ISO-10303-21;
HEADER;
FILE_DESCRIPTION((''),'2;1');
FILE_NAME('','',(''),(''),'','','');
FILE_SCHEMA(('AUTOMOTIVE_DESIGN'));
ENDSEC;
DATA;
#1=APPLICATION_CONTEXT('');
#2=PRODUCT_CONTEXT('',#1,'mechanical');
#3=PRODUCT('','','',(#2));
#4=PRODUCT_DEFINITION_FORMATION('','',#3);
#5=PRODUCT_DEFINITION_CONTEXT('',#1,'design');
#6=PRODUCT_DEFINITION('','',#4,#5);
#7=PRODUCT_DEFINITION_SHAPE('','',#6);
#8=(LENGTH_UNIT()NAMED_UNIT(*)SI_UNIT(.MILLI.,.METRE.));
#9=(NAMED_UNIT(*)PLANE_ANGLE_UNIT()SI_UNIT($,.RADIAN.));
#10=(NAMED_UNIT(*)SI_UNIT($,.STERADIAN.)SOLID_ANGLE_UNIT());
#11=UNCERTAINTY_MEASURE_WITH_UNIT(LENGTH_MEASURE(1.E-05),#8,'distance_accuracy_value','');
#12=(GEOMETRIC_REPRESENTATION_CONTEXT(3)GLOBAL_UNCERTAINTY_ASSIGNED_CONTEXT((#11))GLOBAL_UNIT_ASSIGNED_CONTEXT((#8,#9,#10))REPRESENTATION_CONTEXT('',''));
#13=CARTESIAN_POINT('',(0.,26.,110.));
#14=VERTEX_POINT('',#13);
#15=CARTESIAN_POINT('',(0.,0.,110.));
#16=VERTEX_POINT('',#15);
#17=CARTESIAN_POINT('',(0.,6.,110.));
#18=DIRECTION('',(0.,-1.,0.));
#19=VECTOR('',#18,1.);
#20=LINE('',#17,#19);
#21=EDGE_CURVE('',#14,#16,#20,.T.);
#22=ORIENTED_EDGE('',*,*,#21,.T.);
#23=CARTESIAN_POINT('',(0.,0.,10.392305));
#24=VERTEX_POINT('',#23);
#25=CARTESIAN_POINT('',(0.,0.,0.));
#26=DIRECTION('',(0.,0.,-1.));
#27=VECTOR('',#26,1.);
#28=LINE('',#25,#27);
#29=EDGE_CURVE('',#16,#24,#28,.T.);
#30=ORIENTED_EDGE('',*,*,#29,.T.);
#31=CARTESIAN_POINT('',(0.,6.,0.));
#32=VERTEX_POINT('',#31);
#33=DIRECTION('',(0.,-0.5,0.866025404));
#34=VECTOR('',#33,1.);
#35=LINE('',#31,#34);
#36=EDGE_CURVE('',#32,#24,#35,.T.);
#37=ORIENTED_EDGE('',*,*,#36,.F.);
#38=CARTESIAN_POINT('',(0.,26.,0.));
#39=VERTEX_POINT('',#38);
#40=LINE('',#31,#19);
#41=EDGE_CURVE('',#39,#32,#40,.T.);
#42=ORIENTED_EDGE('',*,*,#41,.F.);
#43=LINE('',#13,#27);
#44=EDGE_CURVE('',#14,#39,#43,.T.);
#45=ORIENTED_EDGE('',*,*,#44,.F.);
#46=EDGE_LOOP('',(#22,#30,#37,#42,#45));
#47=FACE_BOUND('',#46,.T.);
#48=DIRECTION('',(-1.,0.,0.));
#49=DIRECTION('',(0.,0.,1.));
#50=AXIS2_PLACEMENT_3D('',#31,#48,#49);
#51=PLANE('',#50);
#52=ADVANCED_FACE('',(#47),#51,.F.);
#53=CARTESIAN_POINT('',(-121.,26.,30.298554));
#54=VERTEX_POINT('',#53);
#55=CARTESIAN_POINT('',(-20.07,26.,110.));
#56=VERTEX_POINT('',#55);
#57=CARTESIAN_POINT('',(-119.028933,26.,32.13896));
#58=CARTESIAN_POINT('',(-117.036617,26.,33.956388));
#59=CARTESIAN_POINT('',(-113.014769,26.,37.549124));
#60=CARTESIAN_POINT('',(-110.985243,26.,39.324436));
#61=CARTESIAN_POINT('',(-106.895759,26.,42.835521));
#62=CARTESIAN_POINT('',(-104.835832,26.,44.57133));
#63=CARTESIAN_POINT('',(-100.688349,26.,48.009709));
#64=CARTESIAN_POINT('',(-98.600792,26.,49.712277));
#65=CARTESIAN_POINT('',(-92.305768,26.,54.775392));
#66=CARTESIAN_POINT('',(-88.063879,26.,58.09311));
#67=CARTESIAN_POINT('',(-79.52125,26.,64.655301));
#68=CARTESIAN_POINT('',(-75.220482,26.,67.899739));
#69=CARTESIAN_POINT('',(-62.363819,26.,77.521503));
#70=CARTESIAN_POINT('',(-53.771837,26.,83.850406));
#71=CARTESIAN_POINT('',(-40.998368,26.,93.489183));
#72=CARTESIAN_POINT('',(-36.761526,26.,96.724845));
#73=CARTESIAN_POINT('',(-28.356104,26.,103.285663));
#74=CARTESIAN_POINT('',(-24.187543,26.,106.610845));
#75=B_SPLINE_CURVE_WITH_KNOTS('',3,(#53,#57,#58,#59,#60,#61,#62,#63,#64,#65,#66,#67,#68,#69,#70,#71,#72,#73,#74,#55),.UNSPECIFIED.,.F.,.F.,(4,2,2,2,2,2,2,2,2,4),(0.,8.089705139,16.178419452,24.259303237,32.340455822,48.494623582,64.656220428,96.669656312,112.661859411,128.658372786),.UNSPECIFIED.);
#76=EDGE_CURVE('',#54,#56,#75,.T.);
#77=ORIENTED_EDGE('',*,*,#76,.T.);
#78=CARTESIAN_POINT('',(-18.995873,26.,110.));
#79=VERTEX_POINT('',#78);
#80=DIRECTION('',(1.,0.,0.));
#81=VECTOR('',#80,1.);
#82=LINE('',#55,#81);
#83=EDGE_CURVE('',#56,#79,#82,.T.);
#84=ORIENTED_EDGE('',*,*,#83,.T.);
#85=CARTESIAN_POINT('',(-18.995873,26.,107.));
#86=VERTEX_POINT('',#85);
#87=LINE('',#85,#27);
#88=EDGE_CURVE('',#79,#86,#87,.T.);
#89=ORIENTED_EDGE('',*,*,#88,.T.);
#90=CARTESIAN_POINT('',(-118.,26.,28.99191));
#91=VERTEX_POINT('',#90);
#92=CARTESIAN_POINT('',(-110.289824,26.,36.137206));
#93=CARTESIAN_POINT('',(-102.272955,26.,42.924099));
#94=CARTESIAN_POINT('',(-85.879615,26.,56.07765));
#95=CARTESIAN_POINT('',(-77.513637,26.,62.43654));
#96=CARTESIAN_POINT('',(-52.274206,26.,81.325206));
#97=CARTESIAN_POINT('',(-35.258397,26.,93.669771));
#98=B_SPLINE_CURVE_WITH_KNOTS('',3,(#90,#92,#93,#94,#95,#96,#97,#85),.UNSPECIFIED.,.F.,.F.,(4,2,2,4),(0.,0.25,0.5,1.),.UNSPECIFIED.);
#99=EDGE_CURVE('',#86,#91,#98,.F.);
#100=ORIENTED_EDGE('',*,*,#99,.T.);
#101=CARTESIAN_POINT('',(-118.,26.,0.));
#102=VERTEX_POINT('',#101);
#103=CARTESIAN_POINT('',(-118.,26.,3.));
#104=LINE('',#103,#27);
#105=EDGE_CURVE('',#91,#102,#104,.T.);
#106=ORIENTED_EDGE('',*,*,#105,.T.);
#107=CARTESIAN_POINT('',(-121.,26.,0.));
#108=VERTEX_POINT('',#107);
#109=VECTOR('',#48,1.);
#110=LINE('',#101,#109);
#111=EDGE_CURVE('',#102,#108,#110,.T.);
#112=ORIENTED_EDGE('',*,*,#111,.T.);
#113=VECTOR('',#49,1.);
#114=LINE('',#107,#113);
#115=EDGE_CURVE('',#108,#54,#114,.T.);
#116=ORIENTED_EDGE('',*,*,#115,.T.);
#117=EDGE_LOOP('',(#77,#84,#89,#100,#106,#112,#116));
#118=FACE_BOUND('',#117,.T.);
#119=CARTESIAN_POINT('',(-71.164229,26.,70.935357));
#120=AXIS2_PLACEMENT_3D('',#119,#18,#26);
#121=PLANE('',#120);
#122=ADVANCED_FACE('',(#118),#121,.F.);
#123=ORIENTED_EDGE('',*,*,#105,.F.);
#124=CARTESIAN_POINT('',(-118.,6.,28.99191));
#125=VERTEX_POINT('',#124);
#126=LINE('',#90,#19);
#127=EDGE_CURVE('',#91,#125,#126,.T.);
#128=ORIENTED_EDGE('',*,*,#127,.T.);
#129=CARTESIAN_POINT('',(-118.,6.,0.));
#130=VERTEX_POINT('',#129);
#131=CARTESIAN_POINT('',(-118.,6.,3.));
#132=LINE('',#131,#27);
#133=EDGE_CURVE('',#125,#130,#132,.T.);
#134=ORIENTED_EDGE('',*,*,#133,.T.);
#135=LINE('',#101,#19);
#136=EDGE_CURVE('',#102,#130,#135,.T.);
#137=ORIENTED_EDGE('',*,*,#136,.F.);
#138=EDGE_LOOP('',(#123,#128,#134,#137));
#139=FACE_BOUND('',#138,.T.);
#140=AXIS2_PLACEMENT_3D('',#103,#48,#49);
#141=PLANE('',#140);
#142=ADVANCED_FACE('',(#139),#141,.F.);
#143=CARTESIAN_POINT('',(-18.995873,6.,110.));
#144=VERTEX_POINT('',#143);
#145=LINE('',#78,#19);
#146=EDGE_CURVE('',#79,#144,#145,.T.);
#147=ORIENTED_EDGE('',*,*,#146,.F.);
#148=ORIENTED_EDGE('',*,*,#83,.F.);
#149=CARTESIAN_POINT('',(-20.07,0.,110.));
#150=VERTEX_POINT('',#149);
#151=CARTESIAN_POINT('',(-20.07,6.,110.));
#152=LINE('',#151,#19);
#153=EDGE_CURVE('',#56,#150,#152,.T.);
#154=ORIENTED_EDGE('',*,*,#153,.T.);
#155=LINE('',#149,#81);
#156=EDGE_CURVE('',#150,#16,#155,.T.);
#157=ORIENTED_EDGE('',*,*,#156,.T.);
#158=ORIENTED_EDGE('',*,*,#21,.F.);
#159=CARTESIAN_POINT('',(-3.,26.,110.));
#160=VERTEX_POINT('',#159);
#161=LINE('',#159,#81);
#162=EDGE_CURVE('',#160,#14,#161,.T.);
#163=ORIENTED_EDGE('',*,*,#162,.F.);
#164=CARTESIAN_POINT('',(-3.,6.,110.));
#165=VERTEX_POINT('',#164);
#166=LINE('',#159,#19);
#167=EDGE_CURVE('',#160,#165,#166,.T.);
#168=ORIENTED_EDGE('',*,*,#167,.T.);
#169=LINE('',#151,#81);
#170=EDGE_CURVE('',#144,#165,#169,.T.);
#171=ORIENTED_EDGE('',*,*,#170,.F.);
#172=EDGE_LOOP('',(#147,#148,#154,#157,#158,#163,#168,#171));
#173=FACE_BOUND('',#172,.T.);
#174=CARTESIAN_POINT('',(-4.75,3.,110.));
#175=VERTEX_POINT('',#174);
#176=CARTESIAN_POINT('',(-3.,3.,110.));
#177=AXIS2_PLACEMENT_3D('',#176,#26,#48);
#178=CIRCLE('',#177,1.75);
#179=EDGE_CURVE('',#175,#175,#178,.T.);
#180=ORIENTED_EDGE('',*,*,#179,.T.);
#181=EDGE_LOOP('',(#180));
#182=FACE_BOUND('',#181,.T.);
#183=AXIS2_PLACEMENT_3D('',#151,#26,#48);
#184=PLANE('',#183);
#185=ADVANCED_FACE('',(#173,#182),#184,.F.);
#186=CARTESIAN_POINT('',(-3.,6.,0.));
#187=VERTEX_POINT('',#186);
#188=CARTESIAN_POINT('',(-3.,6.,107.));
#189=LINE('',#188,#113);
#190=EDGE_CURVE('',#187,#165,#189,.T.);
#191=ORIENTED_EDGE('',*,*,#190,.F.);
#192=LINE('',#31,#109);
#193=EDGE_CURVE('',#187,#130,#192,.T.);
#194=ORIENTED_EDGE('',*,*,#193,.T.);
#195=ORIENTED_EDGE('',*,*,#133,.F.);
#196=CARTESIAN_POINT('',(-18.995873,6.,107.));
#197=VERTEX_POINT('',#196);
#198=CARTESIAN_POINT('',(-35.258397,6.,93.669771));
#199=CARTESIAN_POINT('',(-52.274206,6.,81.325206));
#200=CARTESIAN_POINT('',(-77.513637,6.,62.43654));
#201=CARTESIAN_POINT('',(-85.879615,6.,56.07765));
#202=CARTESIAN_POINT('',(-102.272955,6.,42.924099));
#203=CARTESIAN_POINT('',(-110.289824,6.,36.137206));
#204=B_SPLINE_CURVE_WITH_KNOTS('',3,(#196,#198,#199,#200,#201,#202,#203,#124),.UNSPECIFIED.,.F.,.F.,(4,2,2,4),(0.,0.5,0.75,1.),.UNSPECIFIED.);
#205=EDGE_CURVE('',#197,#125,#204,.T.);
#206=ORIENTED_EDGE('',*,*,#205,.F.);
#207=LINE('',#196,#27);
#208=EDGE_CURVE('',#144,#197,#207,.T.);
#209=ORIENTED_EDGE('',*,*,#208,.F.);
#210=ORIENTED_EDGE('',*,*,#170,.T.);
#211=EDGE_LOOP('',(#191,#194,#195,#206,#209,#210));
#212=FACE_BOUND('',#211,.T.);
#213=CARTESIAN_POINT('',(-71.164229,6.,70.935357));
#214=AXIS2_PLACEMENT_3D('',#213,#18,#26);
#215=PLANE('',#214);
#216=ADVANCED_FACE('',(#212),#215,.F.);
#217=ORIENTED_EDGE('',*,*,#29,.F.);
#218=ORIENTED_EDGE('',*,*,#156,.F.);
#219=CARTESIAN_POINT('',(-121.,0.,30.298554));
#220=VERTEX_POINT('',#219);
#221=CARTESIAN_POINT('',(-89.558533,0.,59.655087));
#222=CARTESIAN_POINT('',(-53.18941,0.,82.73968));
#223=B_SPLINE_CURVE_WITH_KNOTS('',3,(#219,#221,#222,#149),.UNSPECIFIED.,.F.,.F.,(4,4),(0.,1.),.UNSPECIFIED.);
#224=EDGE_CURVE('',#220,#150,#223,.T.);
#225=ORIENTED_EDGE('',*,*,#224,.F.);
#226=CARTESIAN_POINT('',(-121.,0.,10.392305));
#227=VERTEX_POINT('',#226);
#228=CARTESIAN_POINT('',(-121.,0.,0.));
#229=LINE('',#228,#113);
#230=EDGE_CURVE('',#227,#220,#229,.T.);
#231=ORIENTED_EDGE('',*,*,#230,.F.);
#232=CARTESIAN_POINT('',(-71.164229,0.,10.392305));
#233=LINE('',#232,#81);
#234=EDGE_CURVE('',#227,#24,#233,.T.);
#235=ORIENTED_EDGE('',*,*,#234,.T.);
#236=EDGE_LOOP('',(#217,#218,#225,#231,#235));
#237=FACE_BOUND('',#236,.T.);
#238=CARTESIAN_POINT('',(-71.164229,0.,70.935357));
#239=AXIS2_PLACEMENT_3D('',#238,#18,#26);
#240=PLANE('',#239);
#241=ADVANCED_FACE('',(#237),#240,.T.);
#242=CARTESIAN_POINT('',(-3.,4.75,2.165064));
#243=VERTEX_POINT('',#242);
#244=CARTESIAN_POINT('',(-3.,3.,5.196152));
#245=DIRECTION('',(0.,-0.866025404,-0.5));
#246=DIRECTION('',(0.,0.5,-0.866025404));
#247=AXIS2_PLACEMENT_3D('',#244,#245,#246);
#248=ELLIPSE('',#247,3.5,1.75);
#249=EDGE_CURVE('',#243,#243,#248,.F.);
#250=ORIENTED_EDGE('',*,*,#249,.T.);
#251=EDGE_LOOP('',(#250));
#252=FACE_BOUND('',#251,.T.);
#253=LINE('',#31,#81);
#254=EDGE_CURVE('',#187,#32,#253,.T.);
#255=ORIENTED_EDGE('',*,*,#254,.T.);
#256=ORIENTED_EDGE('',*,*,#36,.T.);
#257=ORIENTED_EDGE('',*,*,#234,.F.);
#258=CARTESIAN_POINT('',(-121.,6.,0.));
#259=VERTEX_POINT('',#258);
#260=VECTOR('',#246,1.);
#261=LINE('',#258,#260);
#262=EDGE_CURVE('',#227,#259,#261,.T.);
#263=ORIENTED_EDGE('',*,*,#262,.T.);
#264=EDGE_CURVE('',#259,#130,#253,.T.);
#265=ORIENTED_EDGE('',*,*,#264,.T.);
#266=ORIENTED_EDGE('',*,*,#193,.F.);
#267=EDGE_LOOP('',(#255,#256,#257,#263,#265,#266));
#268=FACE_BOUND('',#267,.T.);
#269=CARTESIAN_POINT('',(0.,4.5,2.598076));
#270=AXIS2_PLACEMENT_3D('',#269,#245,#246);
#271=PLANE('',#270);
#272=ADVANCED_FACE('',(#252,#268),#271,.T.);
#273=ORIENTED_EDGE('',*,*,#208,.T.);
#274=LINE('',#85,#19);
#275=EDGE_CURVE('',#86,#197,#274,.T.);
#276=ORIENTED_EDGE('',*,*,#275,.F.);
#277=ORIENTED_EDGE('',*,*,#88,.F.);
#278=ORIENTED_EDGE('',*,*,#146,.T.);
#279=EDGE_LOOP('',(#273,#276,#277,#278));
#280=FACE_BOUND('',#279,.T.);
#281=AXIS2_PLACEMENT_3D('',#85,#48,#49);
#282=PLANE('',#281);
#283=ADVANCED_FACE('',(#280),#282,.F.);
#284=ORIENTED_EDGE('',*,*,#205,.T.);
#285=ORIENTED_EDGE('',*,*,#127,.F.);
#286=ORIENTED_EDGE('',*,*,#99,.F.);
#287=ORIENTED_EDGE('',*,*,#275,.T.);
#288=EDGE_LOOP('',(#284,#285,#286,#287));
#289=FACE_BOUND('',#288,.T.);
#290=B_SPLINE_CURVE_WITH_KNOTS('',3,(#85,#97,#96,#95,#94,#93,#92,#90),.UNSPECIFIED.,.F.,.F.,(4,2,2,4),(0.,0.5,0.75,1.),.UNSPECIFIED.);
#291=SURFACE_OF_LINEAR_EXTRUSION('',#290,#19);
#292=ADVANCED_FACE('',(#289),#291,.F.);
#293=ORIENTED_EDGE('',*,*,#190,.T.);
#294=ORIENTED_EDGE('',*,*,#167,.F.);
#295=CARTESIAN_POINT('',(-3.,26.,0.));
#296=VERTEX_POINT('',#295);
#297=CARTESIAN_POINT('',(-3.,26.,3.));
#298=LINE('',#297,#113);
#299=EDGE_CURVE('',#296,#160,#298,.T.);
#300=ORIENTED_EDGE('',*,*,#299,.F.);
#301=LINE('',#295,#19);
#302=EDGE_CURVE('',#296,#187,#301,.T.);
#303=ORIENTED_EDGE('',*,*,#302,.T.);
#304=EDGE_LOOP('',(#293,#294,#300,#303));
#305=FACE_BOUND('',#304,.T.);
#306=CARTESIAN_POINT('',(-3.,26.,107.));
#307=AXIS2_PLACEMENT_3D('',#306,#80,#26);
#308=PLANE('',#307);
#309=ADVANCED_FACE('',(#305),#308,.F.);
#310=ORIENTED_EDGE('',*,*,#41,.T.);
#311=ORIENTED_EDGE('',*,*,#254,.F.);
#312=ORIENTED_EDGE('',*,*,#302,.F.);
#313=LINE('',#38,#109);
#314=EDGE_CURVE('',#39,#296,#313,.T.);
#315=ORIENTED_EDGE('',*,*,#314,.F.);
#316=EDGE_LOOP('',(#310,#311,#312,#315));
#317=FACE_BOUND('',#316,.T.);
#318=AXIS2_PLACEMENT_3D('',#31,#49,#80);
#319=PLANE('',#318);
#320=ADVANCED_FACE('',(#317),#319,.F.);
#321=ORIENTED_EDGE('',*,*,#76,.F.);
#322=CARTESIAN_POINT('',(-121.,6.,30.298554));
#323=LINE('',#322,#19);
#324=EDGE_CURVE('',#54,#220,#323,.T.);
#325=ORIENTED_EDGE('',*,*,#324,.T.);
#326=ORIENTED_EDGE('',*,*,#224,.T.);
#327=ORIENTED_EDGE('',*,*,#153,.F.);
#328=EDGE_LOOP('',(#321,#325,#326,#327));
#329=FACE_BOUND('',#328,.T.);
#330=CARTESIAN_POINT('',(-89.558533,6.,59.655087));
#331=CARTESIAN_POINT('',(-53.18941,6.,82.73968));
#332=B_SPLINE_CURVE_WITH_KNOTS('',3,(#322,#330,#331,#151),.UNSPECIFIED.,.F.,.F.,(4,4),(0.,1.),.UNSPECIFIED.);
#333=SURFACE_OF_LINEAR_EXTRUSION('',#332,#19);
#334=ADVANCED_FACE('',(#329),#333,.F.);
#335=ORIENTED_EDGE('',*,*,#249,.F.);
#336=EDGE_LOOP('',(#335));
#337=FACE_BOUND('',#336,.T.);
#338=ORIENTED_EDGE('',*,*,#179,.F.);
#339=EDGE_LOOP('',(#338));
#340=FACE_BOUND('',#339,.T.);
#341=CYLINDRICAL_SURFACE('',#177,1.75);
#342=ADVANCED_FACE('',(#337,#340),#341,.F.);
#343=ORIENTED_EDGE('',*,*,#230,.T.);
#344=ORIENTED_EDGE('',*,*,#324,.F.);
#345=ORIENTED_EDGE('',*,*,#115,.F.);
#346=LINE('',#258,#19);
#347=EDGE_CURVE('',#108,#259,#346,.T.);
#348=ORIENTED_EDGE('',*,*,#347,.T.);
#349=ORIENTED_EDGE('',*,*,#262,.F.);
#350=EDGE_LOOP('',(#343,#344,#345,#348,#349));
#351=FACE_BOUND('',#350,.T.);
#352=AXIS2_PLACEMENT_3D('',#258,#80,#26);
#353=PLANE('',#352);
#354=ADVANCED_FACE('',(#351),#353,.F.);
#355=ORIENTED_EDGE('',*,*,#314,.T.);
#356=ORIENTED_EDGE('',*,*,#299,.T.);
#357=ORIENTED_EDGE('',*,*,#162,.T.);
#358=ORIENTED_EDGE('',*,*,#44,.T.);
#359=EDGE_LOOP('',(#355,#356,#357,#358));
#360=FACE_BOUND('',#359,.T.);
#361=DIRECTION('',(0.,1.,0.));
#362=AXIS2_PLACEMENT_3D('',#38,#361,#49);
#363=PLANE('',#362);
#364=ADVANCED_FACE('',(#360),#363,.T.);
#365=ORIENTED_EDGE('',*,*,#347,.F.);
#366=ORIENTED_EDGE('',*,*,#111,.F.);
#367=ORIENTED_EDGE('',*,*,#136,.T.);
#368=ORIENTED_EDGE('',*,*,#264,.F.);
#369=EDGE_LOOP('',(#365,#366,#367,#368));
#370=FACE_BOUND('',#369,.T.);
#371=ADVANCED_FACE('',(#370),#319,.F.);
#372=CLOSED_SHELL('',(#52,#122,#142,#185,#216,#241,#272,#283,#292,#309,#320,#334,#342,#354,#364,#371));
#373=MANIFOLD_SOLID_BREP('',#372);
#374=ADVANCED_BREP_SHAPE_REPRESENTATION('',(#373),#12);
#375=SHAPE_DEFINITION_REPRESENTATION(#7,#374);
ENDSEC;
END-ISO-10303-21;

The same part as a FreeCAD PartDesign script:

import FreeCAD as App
import Part
import Sketcher

V = App.Vector

doc = App.newDocument("Part")
body = doc.addObject("PartDesign::Body", "Body")

sketch1 = body.newObject("Sketcher::SketchObject", "Sketch")
sketch1.AttachmentSupport = (doc.getObject("XZ_Plane"), [""])
sketch1.MapMode = "FlatFace"
sketch1.addGeometry(Part.LineSegment(V(0, 0, 0), V(-121, 0, 0)), False)
sketch1.addGeometry(Part.LineSegment(V(-121, 0, 0), V(-121, 30.298554, 0)), False)
sketch1.addGeometry(Part.BSplineCurve([V(-121, 30.298554, 0), V(-89.558533, 59.655087, 0), V(-53.18941, 82.73968, 0), V(-20.07, 110, 0)], [4, 4], [0, 1], False, 3, [1, 1, 1, 1], False), False)
sketch1.addGeometry(Part.LineSegment(V(-20.07, 110, 0), V(0, 110, 0)), False)
sketch1.addGeometry(Part.LineSegment(V(0, 110, 0), V(0, 0, 0)), False)
sketch1.addConstraint(Sketcher.Constraint("Block", 2))
sketch1.addConstraint(Sketcher.Constraint("Coincident", 0, 2, 1, 1))
sketch1.addConstraint(Sketcher.Constraint("Coincident", 1, 2, 2, 1))
sketch1.addConstraint(Sketcher.Constraint("Coincident", 2, 2, 3, 1))
sketch1.addConstraint(Sketcher.Constraint("Coincident", 3, 2, 4, 1))
sketch1.addConstraint(Sketcher.Constraint("Coincident", 4, 2, 0, 1))
sketch1.addConstraint(Sketcher.Constraint("Horizontal", 0))
sketch1.addConstraint(Sketcher.Constraint("Vertical", 1))
sketch1.addConstraint(Sketcher.Constraint("Horizontal", 3))
sketch1.addConstraint(Sketcher.Constraint("Vertical", 4))
sketch1.addConstraint(Sketcher.Constraint("Coincident", 4, 2, -1, 1))
pad1 = body.newObject("PartDesign::Pad", "Pad")
pad1.Profile = sketch1
pad1.Length = 6
pad1.Reversed = True

sketch2 = body.newObject("Sketcher::SketchObject", "Sketch001")
sketch2.AttachmentSupport = (doc.getObject("XY_Plane"), [""])
sketch2.MapMode = "FlatFace"
sketch2.addGeometry(Part.Circle(V(-3, 3, 0), V(0, 0, 1), 1.8), False)
sketch2.addConstraint(Sketcher.Constraint("Diameter", 0, 3.5))
sketch2.addConstraint(Sketcher.Constraint("DistanceX", 0, 3, -1, 1, 3.0))
sketch2.addConstraint(Sketcher.Constraint("DistanceY", -1, 1, 0, 3, 3.0))
pocket1 = body.newObject("PartDesign::Pocket", "Pocket")
pocket1.Profile = sketch2
pocket1.Type = "ThroughAll"
pocket1.Midplane = True

sketch3 = body.newObject("Sketcher::SketchObject", "Sketch002")
sketch3.AttachmentSupport = (doc.getObject("XZ_Plane"), [""])
sketch3.MapMode = "FlatFace"
sketch3.AttachmentOffset = App.Placement(V(0, 0, -6), App.Rotation())
sketch3.addGeometry(Part.LineSegment(V(-118, 0, 0), V(-121, 0, 0)), False)
sketch3.addGeometry(Part.LineSegment(V(-121, 0, 0), V(-121, 30.298554, 0)), False)
sketch3.addGeometry(Part.BSplineCurve([V(-121, 30.298554, 0), V(-89.558533, 59.655087, 0), V(-53.18941, 82.73968, 0), V(-20.07, 110, 0)], [4, 4], [0, 1], False, 3, [1, 1, 1, 1], False), False)
sketch3.addGeometry(Part.LineSegment(V(-20.07, 110, 0), V(-18.995873, 110, 0)), False)
sketch3.addGeometry(Part.LineSegment(V(-18.995873, 110, 0), V(-18.995873, 107, 0)), False)
sketch3.addGeometry(Part.BSplineCurve([V(-118, 28.99191, 0), V(-110.289824, 36.137206, 0), V(-102.272955, 42.924099, 0), V(-85.879615, 56.07765, 0), V(-77.513637, 62.43654, 0), V(-52.274206, 81.325206, 0), V(-35.258397, 93.669771, 0), V(-18.995873, 107, 0)], [4, 2, 2, 4], [0, 0.25, 0.5, 1], False, 3, [1, 1, 1, 1, 1, 1, 1, 1], False), False)
sketch3.addGeometry(Part.LineSegment(V(-118, 28.99191, 0), V(-118, 0, 0)), False)
sketch3.addGeometry(Part.LineSegment(V(-3, 0, 0), V(-3, 110, 0)), False)
sketch3.addGeometry(Part.LineSegment(V(-3, 110, 0), V(0, 110, 0)), False)
sketch3.addGeometry(Part.LineSegment(V(0, 110, 0), V(0, 0, 0)), False)
sketch3.addGeometry(Part.LineSegment(V(0, 0, 0), V(-3, 0, 0)), False)
sketch3.addConstraint(Sketcher.Constraint("Block", 2))
sketch3.addConstraint(Sketcher.Constraint("Block", 5))
sketch3.addConstraint(Sketcher.Constraint("Coincident", 0, 2, 1, 1))
sketch3.addConstraint(Sketcher.Constraint("Coincident", 1, 2, 2, 1))
sketch3.addConstraint(Sketcher.Constraint("Coincident", 2, 2, 3, 1))
sketch3.addConstraint(Sketcher.Constraint("Coincident", 3, 2, 4, 1))
sketch3.addConstraint(Sketcher.Constraint("Coincident", 4, 2, 5, 2))
sketch3.addConstraint(Sketcher.Constraint("Coincident", 5, 1, 6, 1))
sketch3.addConstraint(Sketcher.Constraint("Coincident", 6, 2, 0, 1))
sketch3.addConstraint(Sketcher.Constraint("Coincident", 7, 2, 8, 1))
sketch3.addConstraint(Sketcher.Constraint("Coincident", 8, 2, 9, 1))
sketch3.addConstraint(Sketcher.Constraint("Coincident", 9, 2, 10, 1))
sketch3.addConstraint(Sketcher.Constraint("Coincident", 10, 2, 7, 1))
sketch3.addConstraint(Sketcher.Constraint("Horizontal", 0))
sketch3.addConstraint(Sketcher.Constraint("Vertical", 1))
sketch3.addConstraint(Sketcher.Constraint("Horizontal", 3))
sketch3.addConstraint(Sketcher.Constraint("Vertical", 4))
sketch3.addConstraint(Sketcher.Constraint("Vertical", 6))
sketch3.addConstraint(Sketcher.Constraint("Vertical", 7))
sketch3.addConstraint(Sketcher.Constraint("Horizontal", 8))
sketch3.addConstraint(Sketcher.Constraint("Vertical", 9))
sketch3.addConstraint(Sketcher.Constraint("Horizontal", 10))
sketch3.addConstraint(Sketcher.Constraint("Coincident", 9, 2, -1, 1))
sketch3.addConstraint(Sketcher.Constraint("PointOnObject", 0, 2, -1))
sketch3.addConstraint(Sketcher.Constraint("Horizontal", 3, 2, 7, 2))
sketch3.addConstraint(Sketcher.Constraint("Equal", 0, 8))
pad2 = body.newObject("PartDesign::Pad", "Pad001")
pad2.Profile = sketch3
pad2.Length = 20
pad2.Reversed = True

sketch4 = body.newObject("Sketcher::SketchObject", "Sketch003")
sketch4.Placement = App.Placement(V(0, 4.5, 2.598076), App.Rotation(V(-1, 0, 0), V(0, 0.5, -0.866025404), V(0, -0.866025404, -0.5), "ZXY"))
sketch4.addGeometry(Part.LineSegment(V(-5, 21, 0), V(-5, -34, 0)), False)
sketch4.addGeometry(Part.LineSegment(V(-5, -34, 0), V(127, -34, 0)), False)
sketch4.addGeometry(Part.LineSegment(V(127, -34, 0), V(127, 21, 0)), False)
sketch4.addGeometry(Part.LineSegment(V(127, 21, 0), V(-5, 21, 0)), False)
sketch4.addConstraint(Sketcher.Constraint("Coincident", 0, 2, 1, 1))
sketch4.addConstraint(Sketcher.Constraint("Coincident", 1, 2, 2, 1))
sketch4.addConstraint(Sketcher.Constraint("Coincident", 2, 2, 3, 1))
sketch4.addConstraint(Sketcher.Constraint("Coincident", 3, 2, 0, 1))
sketch4.addConstraint(Sketcher.Constraint("Vertical", 0))
sketch4.addConstraint(Sketcher.Constraint("Horizontal", 1))
sketch4.addConstraint(Sketcher.Constraint("Vertical", 2))
sketch4.addConstraint(Sketcher.Constraint("Horizontal", 3))
sketch4.addConstraint(Sketcher.Constraint("DistanceX", 1, 1, 1, 2, 132.336634))
sketch4.addConstraint(Sketcher.Constraint("DistanceY", 0, 2, 0, 1, 54.683143))
sketch4.addConstraint(Sketcher.Constraint("DistanceY", -1, 1, 2, 2, 20.986889))
sketch4.addConstraint(Sketcher.Constraint("DistanceX", 0, 2, -1, 1, 5.325476))
pocket2 = body.newObject("PartDesign::Pocket", "Pocket001")
pocket2.Profile = sketch4
pocket2.Length = 20
pocket2.Reversed = True

doc.recompute()
